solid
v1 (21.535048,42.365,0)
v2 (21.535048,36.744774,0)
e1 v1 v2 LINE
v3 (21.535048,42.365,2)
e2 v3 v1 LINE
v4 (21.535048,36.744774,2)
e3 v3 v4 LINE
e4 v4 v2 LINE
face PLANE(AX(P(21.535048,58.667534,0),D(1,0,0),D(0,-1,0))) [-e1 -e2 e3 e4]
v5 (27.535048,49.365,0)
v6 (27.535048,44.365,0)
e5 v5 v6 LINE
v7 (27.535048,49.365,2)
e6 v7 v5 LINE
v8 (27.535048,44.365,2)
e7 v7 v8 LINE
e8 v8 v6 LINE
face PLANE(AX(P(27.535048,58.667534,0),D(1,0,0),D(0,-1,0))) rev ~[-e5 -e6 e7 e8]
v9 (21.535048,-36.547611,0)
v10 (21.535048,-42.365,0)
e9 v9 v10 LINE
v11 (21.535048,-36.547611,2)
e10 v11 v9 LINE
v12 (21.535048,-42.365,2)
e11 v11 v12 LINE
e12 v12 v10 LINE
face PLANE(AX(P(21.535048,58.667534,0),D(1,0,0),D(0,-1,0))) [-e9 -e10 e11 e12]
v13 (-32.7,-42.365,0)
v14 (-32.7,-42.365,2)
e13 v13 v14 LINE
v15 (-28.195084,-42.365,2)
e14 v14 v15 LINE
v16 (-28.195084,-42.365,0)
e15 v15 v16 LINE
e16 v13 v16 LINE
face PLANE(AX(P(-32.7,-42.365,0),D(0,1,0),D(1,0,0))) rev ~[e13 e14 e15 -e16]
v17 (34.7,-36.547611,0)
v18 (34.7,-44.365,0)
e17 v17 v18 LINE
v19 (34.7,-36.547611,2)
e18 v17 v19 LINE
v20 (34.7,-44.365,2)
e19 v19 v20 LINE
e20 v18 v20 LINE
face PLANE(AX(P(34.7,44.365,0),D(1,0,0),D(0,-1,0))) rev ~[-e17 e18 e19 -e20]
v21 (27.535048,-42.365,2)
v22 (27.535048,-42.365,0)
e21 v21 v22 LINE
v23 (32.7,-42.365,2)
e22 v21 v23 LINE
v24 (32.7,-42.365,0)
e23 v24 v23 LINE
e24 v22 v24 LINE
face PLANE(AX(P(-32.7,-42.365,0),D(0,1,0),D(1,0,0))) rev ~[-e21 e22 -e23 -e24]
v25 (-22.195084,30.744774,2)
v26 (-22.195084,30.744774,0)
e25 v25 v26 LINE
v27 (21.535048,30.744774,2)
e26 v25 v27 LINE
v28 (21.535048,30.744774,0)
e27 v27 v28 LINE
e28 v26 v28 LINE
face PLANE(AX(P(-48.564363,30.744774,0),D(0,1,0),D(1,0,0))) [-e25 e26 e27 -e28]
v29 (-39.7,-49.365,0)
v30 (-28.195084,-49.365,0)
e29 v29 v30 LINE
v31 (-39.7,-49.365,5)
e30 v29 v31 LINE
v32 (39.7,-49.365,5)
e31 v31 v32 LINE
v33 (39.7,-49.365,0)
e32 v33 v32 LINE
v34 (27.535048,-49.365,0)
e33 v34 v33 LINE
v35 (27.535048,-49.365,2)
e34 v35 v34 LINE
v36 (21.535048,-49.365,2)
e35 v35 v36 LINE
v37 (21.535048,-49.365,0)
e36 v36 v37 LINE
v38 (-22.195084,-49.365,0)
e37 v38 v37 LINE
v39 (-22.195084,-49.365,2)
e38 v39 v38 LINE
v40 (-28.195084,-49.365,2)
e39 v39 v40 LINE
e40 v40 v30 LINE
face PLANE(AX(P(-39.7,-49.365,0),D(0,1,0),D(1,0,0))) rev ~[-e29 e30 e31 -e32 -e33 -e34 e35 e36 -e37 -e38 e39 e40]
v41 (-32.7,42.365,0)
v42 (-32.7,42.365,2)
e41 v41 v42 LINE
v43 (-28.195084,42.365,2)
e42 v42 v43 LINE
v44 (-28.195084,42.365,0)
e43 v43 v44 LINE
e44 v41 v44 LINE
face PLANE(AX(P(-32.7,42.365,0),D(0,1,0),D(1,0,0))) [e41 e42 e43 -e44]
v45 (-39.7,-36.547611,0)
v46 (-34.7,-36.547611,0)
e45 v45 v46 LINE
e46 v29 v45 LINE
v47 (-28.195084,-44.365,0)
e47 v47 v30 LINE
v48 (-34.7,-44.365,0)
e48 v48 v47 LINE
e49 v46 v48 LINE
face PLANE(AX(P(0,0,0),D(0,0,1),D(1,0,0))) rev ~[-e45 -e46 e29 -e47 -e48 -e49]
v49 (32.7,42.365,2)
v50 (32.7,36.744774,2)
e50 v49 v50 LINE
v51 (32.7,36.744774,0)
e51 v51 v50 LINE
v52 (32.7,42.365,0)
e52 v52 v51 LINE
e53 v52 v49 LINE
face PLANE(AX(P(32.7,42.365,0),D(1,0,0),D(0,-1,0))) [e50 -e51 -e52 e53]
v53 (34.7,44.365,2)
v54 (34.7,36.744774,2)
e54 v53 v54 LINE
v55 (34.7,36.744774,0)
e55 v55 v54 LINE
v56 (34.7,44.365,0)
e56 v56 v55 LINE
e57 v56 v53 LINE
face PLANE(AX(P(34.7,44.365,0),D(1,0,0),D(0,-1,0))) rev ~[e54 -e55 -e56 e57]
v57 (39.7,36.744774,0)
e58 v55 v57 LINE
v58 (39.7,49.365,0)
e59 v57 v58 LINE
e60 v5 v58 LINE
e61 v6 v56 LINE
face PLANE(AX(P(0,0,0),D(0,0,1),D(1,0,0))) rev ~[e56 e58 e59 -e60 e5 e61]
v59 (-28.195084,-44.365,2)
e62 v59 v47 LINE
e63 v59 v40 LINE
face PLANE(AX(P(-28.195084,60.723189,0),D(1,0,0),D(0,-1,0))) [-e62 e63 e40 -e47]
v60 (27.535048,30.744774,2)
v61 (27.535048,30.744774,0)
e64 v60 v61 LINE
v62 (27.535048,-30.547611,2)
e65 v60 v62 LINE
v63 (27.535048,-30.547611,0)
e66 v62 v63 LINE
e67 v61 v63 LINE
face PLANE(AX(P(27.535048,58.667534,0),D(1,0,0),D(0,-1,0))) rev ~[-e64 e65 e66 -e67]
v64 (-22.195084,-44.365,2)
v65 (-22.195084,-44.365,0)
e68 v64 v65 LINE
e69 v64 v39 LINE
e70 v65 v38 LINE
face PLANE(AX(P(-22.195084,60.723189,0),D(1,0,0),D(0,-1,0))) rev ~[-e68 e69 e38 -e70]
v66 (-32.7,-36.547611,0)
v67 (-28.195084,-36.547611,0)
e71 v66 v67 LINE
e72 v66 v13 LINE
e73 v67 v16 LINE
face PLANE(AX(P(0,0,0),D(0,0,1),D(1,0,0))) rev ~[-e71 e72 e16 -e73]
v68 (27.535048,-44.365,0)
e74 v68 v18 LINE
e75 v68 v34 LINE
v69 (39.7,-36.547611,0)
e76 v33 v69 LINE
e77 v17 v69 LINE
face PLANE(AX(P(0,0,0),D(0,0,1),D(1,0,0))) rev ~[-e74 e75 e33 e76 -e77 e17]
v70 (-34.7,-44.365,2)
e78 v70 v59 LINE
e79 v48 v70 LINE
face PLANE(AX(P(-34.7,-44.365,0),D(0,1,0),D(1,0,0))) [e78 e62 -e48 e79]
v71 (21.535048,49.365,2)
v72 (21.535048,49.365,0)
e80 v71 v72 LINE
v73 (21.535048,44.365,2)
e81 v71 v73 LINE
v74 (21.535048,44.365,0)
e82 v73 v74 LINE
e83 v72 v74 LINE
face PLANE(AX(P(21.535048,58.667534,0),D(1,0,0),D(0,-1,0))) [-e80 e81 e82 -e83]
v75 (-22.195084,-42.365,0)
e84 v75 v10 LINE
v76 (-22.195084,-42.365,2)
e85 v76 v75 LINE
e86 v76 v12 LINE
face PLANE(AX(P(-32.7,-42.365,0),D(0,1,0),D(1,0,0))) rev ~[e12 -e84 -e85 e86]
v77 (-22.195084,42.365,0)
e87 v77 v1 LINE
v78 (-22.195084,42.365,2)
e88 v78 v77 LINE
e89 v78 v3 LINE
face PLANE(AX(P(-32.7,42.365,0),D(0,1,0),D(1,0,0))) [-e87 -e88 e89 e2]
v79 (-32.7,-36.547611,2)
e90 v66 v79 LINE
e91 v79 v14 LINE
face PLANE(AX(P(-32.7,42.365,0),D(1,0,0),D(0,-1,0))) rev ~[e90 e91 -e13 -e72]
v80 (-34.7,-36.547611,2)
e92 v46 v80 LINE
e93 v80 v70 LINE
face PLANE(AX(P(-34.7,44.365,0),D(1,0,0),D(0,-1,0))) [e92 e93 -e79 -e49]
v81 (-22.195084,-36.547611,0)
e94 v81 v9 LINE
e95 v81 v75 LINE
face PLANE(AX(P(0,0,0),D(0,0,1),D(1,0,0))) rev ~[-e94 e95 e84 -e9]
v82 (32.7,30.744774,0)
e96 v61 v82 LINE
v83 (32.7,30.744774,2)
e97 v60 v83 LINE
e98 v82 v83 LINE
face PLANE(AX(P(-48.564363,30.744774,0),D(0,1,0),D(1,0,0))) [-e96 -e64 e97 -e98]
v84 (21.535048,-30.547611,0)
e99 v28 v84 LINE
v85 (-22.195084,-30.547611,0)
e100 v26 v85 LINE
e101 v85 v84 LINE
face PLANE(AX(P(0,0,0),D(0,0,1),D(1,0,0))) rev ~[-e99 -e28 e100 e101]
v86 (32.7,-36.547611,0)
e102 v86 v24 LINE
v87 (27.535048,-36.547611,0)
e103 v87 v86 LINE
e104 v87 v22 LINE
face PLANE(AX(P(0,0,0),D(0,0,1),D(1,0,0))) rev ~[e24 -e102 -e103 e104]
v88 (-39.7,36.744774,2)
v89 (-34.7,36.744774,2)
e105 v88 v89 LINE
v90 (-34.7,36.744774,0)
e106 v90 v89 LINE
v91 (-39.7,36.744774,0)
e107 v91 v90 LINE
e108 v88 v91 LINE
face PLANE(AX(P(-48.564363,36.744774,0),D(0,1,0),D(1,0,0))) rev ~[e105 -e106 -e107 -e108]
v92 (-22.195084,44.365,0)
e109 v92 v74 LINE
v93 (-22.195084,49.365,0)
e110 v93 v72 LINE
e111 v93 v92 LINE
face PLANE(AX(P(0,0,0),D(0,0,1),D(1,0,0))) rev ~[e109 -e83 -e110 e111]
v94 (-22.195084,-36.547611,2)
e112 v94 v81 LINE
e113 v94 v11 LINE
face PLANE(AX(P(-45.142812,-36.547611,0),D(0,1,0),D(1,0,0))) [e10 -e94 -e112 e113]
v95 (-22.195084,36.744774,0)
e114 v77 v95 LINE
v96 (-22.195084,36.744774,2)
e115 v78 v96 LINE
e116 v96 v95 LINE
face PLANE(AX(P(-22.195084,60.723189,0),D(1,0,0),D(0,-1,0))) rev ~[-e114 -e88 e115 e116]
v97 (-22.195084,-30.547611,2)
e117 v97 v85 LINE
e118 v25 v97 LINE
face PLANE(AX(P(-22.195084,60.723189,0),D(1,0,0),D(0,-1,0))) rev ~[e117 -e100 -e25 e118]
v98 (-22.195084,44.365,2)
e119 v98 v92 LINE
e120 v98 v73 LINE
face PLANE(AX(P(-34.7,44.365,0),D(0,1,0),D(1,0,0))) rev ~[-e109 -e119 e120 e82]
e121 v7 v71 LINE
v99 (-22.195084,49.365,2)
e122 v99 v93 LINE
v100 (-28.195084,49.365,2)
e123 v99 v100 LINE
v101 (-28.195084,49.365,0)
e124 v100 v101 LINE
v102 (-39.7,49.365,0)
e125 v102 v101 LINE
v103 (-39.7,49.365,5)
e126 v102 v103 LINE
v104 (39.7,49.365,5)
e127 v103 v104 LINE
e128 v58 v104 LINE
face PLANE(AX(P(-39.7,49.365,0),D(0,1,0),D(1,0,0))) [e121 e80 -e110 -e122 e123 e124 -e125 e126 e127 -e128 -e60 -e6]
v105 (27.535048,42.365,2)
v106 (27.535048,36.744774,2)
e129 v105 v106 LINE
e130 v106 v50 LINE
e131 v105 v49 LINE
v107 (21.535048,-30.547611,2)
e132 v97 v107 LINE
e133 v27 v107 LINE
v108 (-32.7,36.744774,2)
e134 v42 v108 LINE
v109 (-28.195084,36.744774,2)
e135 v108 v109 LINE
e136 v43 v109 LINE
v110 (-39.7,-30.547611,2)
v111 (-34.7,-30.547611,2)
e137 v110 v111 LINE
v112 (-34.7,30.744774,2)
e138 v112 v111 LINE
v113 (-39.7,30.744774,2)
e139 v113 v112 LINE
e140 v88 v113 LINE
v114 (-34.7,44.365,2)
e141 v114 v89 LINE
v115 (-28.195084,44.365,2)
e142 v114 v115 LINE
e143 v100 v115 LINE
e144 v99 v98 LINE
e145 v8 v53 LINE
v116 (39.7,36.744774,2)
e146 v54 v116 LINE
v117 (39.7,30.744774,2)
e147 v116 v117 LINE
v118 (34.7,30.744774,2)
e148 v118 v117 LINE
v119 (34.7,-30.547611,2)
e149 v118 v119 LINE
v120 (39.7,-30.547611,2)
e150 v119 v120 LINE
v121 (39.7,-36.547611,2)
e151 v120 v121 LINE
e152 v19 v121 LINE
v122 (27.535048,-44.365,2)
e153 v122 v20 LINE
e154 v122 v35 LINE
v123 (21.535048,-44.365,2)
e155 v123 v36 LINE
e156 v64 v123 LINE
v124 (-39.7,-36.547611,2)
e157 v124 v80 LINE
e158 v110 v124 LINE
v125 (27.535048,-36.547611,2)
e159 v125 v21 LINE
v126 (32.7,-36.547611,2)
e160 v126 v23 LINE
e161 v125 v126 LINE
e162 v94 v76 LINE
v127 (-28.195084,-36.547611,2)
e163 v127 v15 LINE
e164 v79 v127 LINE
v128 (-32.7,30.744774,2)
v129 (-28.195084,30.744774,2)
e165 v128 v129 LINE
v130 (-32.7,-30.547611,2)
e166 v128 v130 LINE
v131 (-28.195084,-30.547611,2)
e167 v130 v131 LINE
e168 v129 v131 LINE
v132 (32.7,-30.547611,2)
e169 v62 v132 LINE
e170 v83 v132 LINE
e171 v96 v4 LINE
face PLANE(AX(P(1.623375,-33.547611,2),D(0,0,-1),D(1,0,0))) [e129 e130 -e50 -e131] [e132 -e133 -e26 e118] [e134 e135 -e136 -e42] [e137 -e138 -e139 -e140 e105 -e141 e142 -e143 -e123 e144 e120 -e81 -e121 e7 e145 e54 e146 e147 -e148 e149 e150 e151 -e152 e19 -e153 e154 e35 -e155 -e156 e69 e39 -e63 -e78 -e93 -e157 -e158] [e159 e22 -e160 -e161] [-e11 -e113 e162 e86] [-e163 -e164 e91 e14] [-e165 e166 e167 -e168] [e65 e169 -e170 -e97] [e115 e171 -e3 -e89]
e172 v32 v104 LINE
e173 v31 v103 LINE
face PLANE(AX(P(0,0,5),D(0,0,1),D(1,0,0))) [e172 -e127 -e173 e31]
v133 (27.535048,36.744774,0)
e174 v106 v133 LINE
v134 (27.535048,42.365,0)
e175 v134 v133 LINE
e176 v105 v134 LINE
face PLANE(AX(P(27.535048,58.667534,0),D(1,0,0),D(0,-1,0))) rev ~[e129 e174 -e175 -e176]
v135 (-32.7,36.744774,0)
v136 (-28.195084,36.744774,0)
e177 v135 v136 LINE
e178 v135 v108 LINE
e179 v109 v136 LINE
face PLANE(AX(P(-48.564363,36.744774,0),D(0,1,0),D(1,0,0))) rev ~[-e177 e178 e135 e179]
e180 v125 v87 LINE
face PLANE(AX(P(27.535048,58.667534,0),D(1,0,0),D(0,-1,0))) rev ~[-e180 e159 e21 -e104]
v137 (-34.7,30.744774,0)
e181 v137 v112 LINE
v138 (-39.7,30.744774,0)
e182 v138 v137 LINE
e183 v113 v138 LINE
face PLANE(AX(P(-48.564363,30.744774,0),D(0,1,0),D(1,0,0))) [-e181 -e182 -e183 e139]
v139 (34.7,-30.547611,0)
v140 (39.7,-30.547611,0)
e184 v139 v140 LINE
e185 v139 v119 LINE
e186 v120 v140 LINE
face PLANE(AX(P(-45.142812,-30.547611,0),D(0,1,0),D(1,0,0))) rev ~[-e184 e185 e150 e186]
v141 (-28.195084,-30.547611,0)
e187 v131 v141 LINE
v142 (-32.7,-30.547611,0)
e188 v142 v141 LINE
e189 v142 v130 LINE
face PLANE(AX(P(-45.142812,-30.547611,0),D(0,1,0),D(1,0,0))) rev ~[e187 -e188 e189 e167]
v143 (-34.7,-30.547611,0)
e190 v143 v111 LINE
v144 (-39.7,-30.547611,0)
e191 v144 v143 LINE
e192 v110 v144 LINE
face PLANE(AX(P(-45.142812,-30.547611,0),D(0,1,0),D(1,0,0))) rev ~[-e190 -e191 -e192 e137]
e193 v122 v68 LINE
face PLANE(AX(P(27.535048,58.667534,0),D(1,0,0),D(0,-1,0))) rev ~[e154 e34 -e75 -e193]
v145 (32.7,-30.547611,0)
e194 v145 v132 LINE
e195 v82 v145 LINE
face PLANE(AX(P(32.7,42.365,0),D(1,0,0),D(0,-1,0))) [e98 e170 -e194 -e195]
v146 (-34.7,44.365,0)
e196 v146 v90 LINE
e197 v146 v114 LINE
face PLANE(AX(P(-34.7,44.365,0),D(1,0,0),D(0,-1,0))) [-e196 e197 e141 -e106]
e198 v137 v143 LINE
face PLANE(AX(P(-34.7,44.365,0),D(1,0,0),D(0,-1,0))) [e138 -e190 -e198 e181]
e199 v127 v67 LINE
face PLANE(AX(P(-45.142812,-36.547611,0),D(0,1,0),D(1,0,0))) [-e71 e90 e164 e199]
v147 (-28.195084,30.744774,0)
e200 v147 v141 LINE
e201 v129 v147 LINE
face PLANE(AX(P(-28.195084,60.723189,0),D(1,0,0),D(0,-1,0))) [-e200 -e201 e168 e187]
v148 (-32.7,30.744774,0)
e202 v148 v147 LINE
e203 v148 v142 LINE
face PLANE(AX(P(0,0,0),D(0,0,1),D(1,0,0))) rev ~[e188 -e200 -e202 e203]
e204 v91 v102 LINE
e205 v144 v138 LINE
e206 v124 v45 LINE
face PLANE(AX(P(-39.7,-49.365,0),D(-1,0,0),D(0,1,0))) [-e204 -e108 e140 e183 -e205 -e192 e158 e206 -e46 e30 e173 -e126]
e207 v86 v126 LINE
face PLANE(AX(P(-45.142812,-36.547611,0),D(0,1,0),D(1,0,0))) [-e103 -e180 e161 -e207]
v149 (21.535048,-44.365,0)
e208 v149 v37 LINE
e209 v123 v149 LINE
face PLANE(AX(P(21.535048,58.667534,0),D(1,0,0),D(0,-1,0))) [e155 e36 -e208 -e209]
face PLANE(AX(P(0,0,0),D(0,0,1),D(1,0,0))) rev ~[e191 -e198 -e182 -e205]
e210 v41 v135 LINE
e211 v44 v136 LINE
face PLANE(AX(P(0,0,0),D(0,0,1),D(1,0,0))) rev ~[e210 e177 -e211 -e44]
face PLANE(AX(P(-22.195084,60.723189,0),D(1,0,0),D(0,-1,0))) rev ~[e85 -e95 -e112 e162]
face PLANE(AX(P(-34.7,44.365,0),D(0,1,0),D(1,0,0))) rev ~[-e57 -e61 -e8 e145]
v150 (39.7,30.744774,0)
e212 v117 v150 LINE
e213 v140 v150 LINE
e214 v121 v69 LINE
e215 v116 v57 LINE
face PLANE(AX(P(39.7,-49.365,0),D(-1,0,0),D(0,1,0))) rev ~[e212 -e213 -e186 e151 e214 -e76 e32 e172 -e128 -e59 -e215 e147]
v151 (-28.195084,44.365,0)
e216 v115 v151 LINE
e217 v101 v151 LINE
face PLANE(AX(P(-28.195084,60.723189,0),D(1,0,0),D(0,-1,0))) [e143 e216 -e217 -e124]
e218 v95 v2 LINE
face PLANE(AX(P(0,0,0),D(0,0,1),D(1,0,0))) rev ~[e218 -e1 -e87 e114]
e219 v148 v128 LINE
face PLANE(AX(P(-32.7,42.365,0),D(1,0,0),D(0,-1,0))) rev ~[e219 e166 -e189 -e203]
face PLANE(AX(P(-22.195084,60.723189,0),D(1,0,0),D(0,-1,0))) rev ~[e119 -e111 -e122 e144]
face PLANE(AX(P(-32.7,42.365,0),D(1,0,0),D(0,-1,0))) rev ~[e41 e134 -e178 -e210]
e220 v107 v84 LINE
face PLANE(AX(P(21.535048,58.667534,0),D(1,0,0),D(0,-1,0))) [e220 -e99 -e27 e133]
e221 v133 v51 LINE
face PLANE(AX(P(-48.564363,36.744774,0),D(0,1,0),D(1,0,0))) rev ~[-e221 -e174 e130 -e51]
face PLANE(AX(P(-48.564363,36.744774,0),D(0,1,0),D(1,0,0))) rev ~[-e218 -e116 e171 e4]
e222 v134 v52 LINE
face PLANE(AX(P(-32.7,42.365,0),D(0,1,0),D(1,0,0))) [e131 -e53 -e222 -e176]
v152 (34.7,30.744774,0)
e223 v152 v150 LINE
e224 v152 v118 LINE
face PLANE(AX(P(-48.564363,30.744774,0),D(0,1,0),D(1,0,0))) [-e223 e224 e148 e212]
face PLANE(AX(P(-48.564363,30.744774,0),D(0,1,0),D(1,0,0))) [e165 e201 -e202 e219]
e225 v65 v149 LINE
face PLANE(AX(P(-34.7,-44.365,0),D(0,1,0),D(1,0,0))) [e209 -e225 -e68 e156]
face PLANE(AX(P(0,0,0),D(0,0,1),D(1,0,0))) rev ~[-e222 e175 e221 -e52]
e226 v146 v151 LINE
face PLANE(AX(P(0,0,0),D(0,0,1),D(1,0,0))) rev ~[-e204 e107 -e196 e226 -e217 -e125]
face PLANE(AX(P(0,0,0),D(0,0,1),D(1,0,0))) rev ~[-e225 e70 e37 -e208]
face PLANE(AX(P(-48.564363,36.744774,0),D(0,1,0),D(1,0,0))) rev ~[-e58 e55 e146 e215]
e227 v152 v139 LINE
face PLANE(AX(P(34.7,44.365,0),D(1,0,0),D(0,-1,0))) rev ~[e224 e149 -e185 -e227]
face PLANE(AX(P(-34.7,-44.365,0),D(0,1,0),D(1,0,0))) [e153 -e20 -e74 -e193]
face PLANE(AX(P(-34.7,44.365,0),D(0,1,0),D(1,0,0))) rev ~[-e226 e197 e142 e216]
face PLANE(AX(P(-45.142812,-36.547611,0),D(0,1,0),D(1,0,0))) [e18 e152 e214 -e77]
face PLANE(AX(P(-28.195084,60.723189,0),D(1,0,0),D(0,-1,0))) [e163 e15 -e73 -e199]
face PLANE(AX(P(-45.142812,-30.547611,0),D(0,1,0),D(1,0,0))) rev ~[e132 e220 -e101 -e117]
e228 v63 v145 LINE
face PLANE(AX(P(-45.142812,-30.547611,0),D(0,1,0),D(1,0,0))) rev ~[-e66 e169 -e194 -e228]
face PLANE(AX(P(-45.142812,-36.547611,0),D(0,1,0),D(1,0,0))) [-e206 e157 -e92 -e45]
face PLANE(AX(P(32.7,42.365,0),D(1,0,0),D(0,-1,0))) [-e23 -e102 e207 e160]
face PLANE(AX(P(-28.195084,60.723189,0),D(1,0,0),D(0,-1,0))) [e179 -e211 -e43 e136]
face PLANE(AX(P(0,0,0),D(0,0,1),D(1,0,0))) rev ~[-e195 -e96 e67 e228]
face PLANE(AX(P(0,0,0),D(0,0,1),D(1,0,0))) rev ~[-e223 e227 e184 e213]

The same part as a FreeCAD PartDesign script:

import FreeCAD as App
import Part
import Sketcher
from FreeCAD import Vector


def add_polygon(sketch, points):
    """Adds a closed chain of lines whose ends are joined by coincident constraints."""
    first, n = sketch.GeometryCount, len(points)
    for a, b in zip(points, points[1:] + points[:1]):
        sketch.addGeometry(Part.LineSegment(App.Vector(*a, 0), App.Vector(*b, 0)), False)
    for i in range(n):
        sketch.addConstraint(Sketcher.Constraint("Coincident", first + i, 2, first + (i + 1) % n, 1))

doc = App.newDocument("Part")
body = doc.addObject("PartDesign::Body", "Body")

sketch1 = body.newObject("Sketcher::SketchObject", "Sketch")
sketch1.AttachmentSupport = (doc.getObject("XY_Plane"), [""])
sketch1.MapMode = "FlatFace"
add_polygon(sketch1, [(-40, 49), (-40, -49), (40, -49), (40, 49)])
sketch1.addConstraint([
    Sketcher.Constraint("Vertical", 0),
    Sketcher.Constraint("Horizontal", 1),
    Sketcher.Constraint("Vertical", 2),
    Sketcher.Constraint("Horizontal", 3),
    Sketcher.Constraint("Symmetric", 0, 2, 2, 2, -1, 1),
    Sketcher.Constraint("DistanceX", 1, 1, 1, 2, 79.4),
    Sketcher.Constraint("DistanceY", 0, 2, 0, 1, 98.73),
])
pad1 = body.newObject("PartDesign::Pad", "Pad")
pad1.Profile = sketch1
pad1.Length = 5

sketch2 = body.newObject("Sketcher::SketchObject", "Sketch001")
sketch2.AttachmentSupport = (doc.getObject("XY_Plane"), [""])
sketch2.MapMode = "FlatFace"
add_polygon(sketch2, [(-35, -44), (-35, 44), (35, 44), (35, -44)])
add_polygon(sketch2, [(33, 42), (-33, 42), (-33, -42), (33, -42)])
sketch2.addConstraint([
    Sketcher.Constraint("Vertical", 0),
    Sketcher.Constraint("Horizontal", 1),
    Sketcher.Constraint("Vertical", 2),
    Sketcher.Constraint("Horizontal", 3),
    Sketcher.Constraint("Horizontal", 4),
    Sketcher.Constraint("Vertical", 5),
    Sketcher.Constraint("Horizontal", 6),
    Sketcher.Constraint("Vertical", 7),
    Sketcher.Constraint("Symmetric", 0, 2, 2, 2, -1, 1),
    Sketcher.Constraint("Symmetric", 4, 2, 6, 2, -1, 1),
    Sketcher.Constraint("DistanceX", 1, 1, 1, 2, 69.4),
    Sketcher.Constraint("DistanceX", 4, 2, 4, 1, 65.4),
    Sketcher.Constraint("DistanceY", 4, 2, 0, 2, 2.0),
    Sketcher.Constraint("DistanceY", 0, 1, 0, 2, 88.73),
])
pocket1 = body.newObject("PartDesign::Pocket", "Pocket")
pocket1.Profile = sketch2
pocket1.Length = 2
pocket1.Reversed = True

sketch3 = body.newObject("Sketcher::SketchObject", "Sketch002")
sketch3.AttachmentSupport = (doc.getObject("XY_Plane"), [""])
sketch3.MapMode = "FlatFace"
add_polygon(sketch3, [(-45, -37), (-45, -31), (48, -31), (48, -37)])
sketch3.addConstraint([
    Sketcher.Constraint("Vertical", 0),
    Sketcher.Constraint("Horizontal", 1),
    Sketcher.Constraint("Vertical", 2),
    Sketcher.Constraint("Horizontal", 3),
    Sketcher.Constraint("DistanceY", 0, 1, 0, 2, 6.0),
    Sketcher.Constraint("DistanceX", 1, 1, 1, 2, 93.532375),
    Sketcher.Constraint("DistanceY", 0, 2, -1, 1, 30.547611),
    Sketcher.Constraint("DistanceX", 0, 2, -1, 1, 45.142812),
])
pocket2 = body.newObject("PartDesign::Pocket", "Pocket001")
pocket2.Profile = sketch3
pocket2.Length = 2
pocket2.Reversed = True

sketch4 = body.newObject("Sketcher::SketchObject", "Sketch003")
sketch4.AttachmentSupport = (doc.getObject("XY_Plane"), [""])
sketch4.MapMode = "FlatFace"
add_polygon(sketch4, [(-49, 31), (-49, 37), (52, 37), (52, 31)])
sketch4.addConstraint([
    Sketcher.Constraint("Vertical", 0),
    Sketcher.Constraint("Horizontal", 1),
    Sketcher.Constraint("Vertical", 2),
    Sketcher.Constraint("Horizontal", 3),
    Sketcher.Constraint("DistanceY", 0, 1, 0, 2, 6.0),
    Sketcher.Constraint("DistanceX", 1, 1, 1, 2, 100.384567),
    Sketcher.Constraint("DistanceX", 0, 2, -1, 1, 48.564363),
    Sketcher.Constraint("DistanceY", -1, 1, 0, 2, 36.744774),
])
pocket3 = body.newObject("PartDesign::Pocket", "Pocket002")
pocket3.Profile = sketch4
pocket3.Length = 2
pocket3.Reversed = True

sketch5 = body.newObject("Sketcher::SketchObject", "Sketch004")
sketch5.AttachmentSupport = (doc.getObject("XY_Plane"), [""])
sketch5.MapMode = "FlatFace"
add_polygon(sketch5, [(-28, -52), (-28, 61), (-22, 61), (-22, -52)])
add_polygon(sketch5, [(22, -53), (22, 59), (28, 59), (28, -53)])
sketch5.addConstraint([
    Sketcher.Constraint("Vertical", 0),
    Sketcher.Constraint("Horizontal", 1),
    Sketcher.Constraint("Vertical", 2),
    Sketcher.Constraint("Horizontal", 3),
    Sketcher.Constraint("Vertical", 4),
    Sketcher.Constraint("Horizontal", 5),
    Sketcher.Constraint("Vertical", 6),
    Sketcher.Constraint("Horizontal", 7),
    Sketcher.Constraint("Equal", 3, 5),
    Sketcher.Constraint("DistanceX", 1, 1, 1, 2, 6.0),
    Sketcher.Constraint("DistanceY", 0, 1, 0, 2, 113.061115),
    Sketcher.Constraint("DistanceY", 4, 1, 4, 2, 111.176766),
    Sketcher.Constraint("DistanceY", -1, 1, 0, 2, 60.723189),
    Sketcher.Constraint("DistanceX", -1, 1, 4, 2, 21.535048),
    Sketcher.Constraint("DistanceY", 6, 2, -1, 1, 52.509232),
    Sketcher.Constraint("DistanceX", 1, 2, 4, 2, 43.730132),
])
pocket4 = body.newObject("PartDesign::Pocket", "Pocket003")
pocket4.Profile = sketch5
pocket4.Length = 2
pocket4.Reversed = True

doc.recompute()
